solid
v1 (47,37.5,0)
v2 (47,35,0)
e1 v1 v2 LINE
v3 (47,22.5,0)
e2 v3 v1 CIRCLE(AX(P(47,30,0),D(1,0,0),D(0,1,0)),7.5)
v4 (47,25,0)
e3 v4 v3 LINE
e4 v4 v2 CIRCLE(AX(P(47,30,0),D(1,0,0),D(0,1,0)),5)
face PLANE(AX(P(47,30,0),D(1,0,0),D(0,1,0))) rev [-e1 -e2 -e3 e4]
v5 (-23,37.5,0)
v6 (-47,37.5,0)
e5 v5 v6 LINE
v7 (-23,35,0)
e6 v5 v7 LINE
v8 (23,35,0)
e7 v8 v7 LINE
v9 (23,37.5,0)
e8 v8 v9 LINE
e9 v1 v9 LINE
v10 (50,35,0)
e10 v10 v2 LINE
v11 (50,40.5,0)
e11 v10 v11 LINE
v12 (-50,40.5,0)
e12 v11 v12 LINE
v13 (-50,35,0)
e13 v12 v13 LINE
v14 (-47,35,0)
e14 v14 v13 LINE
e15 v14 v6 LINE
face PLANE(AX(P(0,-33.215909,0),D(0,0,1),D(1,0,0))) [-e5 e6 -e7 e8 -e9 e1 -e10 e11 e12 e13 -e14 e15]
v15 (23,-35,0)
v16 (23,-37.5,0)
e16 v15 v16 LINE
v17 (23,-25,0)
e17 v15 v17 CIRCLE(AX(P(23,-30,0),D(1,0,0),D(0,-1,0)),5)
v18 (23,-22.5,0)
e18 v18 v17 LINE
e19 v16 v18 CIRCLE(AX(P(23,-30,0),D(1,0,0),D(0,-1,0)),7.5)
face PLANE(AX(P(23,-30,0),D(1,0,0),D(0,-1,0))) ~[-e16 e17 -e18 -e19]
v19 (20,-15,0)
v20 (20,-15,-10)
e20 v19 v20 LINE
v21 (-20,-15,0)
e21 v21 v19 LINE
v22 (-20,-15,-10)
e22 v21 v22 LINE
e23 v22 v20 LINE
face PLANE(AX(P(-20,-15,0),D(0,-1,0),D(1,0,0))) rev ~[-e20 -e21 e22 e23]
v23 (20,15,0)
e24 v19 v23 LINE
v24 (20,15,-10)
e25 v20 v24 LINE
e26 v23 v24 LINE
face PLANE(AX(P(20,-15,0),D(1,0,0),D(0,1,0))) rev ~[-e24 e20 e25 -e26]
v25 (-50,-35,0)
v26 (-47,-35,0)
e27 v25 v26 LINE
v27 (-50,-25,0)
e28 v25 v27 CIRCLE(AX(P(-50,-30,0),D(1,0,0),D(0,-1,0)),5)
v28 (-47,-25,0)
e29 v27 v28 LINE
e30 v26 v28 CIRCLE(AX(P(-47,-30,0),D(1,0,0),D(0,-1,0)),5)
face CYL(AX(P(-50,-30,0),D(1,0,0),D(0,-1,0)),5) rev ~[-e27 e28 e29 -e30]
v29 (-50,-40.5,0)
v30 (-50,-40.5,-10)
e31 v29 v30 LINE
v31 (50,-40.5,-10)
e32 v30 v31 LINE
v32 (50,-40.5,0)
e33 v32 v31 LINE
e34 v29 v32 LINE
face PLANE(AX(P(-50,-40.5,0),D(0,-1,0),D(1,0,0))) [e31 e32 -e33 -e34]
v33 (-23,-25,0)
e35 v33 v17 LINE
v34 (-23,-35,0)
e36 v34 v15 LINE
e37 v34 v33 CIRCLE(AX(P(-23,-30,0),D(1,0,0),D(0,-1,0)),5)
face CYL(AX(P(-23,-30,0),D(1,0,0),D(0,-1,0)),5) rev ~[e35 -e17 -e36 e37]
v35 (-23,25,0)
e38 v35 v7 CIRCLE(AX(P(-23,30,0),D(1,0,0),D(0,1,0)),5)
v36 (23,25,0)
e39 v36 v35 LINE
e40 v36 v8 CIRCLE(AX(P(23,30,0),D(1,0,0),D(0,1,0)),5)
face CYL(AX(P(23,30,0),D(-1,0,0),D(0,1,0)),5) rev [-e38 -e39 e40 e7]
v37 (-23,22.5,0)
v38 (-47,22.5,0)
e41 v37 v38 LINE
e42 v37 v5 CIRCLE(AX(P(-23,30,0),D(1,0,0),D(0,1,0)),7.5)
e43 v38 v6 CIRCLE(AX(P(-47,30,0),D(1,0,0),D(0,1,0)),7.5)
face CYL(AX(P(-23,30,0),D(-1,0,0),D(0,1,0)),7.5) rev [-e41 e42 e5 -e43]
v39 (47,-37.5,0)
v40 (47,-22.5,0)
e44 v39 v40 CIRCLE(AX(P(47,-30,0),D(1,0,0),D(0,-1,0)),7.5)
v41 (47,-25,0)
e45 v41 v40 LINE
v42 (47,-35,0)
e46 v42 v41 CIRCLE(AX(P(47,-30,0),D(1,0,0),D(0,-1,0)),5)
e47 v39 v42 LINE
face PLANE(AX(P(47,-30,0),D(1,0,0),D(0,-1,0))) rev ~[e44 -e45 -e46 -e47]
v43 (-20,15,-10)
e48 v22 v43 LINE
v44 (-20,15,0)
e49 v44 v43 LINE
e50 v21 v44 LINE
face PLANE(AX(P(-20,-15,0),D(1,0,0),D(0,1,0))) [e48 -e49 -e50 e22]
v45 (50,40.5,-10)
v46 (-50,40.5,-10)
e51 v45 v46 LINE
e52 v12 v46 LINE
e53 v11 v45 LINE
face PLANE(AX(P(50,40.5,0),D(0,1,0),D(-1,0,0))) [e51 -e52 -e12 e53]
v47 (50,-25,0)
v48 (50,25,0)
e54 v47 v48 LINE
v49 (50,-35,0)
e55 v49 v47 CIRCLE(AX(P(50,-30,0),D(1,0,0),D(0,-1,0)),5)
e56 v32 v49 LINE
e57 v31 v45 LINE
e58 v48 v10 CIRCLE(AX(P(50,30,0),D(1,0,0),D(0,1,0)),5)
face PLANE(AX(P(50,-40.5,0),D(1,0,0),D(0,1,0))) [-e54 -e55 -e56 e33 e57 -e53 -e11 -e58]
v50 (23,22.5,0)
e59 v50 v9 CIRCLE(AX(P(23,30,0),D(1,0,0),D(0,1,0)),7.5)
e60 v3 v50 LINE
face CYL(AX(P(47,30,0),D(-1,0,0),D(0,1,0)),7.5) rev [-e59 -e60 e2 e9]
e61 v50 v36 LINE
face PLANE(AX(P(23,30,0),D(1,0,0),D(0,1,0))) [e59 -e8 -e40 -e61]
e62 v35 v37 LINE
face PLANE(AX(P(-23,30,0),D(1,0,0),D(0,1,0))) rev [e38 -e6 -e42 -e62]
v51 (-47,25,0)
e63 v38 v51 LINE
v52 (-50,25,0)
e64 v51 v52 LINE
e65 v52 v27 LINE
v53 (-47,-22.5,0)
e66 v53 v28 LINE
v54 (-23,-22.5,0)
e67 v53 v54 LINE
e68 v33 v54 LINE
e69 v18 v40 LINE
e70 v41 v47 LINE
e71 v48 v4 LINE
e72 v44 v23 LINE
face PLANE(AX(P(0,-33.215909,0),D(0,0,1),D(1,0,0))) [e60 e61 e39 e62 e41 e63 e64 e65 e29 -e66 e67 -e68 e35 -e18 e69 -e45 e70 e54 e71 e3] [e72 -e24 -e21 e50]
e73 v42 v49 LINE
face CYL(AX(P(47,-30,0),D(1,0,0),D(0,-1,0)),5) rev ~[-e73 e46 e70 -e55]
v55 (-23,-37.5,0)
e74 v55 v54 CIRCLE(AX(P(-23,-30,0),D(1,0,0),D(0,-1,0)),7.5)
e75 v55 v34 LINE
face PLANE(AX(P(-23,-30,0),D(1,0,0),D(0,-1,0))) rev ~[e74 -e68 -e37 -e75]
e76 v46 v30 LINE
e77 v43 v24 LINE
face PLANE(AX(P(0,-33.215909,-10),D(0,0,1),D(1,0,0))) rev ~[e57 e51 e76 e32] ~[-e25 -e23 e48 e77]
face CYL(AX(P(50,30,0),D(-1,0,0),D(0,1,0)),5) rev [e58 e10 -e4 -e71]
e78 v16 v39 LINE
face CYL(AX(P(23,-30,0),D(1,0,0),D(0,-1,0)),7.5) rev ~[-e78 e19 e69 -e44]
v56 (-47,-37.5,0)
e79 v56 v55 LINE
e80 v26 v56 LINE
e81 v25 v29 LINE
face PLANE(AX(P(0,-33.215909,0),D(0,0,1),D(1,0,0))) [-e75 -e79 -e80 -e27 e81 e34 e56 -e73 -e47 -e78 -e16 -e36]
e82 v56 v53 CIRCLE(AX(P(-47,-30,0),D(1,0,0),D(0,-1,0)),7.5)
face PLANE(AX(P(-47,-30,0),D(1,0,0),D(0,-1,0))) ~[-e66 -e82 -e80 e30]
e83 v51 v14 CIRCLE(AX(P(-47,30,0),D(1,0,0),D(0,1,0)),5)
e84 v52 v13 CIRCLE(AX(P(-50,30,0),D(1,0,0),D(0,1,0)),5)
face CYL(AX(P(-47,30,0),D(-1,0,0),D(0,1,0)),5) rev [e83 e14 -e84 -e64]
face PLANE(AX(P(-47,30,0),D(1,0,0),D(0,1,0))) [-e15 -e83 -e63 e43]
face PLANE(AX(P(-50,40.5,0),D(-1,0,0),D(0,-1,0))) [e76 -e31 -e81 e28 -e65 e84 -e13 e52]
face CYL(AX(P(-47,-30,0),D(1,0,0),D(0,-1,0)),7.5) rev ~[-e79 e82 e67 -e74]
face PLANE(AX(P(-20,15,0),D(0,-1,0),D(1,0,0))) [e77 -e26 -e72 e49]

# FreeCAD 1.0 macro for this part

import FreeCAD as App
import Part
import Sketcher
from FreeCAD import Vector

doc = App.newDocument("Part")
body = doc.addObject("PartDesign::Body", "Body")

# Sketch on XY plane
sketch1 = doc.addObject("Sketcher::SketchObject", "Sketch")
body.addObject(sketch1)
sketch1.AttachmentSupport = (doc.XY_Plane, [""])
sketch1.MapMode = "FlatFace"
sketch1.addGeometry(Part.LineSegment(Vector(-50, -40, 0), Vector(50, -40, 0)), False)
sketch1.addGeometry(Part.LineSegment(Vector(50, -40, 0), Vector(50, 40, 0)), False)
sketch1.addGeometry(Part.LineSegment(Vector(50, 40, 0), Vector(-50, 40, 0)), False)
sketch1.addGeometry(Part.LineSegment(Vector(-50, 40, 0), Vector(-50, -40, 0)), False)
sketch1.addConstraint(Sketcher.Constraint("Coincident", 0, 2, 1, 1))
sketch1.addConstraint(Sketcher.Constraint("Coincident", 1, 2, 2, 1))
sketch1.addConstraint(Sketcher.Constraint("Coincident", 2, 2, 3, 1))
sketch1.addConstraint(Sketcher.Constraint("Coincident", 3, 2, 0, 1))
sketch1.addConstraint(Sketcher.Constraint("Horizontal", 0))
sketch1.addConstraint(Sketcher.Constraint("Vertical", 1))
sketch1.addConstraint(Sketcher.Constraint("Horizontal", 2))
sketch1.addConstraint(Sketcher.Constraint("Vertical", 3))
sketch1.addConstraint(Sketcher.Constraint("Symmetric", 0, 2, 2, 2, -1, 1))
sketch1.addConstraint(Sketcher.Constraint("DistanceX", 0, 1, 0, 2, 100.0))
sketch1.addConstraint(Sketcher.Constraint("DistanceY", 1, 1, 1, 2, 81.0))
pad1 = doc.addObject("PartDesign::Pad", "Pad")
body.addObject(pad1)
pad1.Profile = sketch1
pad1.Length = 10
pad1.Reversed = True

# Sketch on XY plane
sketch2 = doc.addObject("Sketcher::SketchObject", "Sketch001")
body.addObject(sketch2)
sketch2.AttachmentSupport = (doc.XY_Plane, [""])
sketch2.MapMode = "FlatFace"
sketch2.addGeometry(Part.LineSegment(Vector(-20, 15, 0), Vector(-20, -15, 0)), False)
sketch2.addGeometry(Part.LineSegment(Vector(-20, -15, 0), Vector(20, -15, 0)), False)
sketch2.addGeometry(Part.LineSegment(Vector(20, -15, 0), Vector(20, 15, 0)), False)
sketch2.addGeometry(Part.LineSegment(Vector(20, 15, 0), Vector(-20, 15, 0)), False)
sketch2.addConstraint(Sketcher.Constraint("Coincident", 0, 2, 1, 1))
sketch2.addConstraint(Sketcher.Constraint("Coincident", 1, 2, 2, 1))
sketch2.addConstraint(Sketcher.Constraint("Coincident", 2, 2, 3, 1))
sketch2.addConstraint(Sketcher.Constraint("Coincident", 3, 2, 0, 1))
sketch2.addConstraint(Sketcher.Constraint("Vertical", 0))
sketch2.addConstraint(Sketcher.Constraint("Horizontal", 1))
sketch2.addConstraint(Sketcher.Constraint("Vertical", 2))
sketch2.addConstraint(Sketcher.Constraint("Horizontal", 3))
sketch2.addConstraint(Sketcher.Constraint("Symmetric", 0, 2, 2, 2, -1, 1))
sketch2.addConstraint(Sketcher.Constraint("DistanceX", 1, 1, 1, 2, 40.0))
sketch2.addConstraint(Sketcher.Constraint("DistanceY", 0, 2, 0, 1, 30.0))
pocket1 = doc.addObject("PartDesign::Pocket", "Pocket")
body.addObject(pocket1)
pocket1.Profile = sketch2
pocket1.Type = "ThroughAll"

# Sketch on XY plane
sketch3 = doc.addObject("Sketcher::SketchObject", "Sketch002")
body.addObject(sketch3)
sketch3.AttachmentSupport = (doc.XY_Plane, [""])
sketch3.MapMode = "FlatFace"
sketch3.addGeometry(Part.LineSegment(Vector(50, 30, 0), Vector(50, 35, 0)), False)
sketch3.addGeometry(Part.LineSegment(Vector(50, 35, 0), Vector(47, 35, 0)), False)
sketch3.addGeometry(Part.LineSegment(Vector(47, 35, 0), Vector(47, 37.5, 0)), False)
sketch3.addGeometry(Part.LineSegment(Vector(47, 37.5, 0), Vector(23, 37.5, 0)), False)
sketch3.addGeometry(Part.LineSegment(Vector(23, 37.5, 0), Vector(23, 35, 0)), False)
sketch3.addGeometry(Part.LineSegment(Vector(23, 35, 0), Vector(-23, 35, 0)), False)
sketch3.addGeometry(Part.LineSegment(Vector(-23, 35, 0), Vector(-23, 37.5, 0)), False)
sketch3.addGeometry(Part.LineSegment(Vector(-23, 37.5, 0), Vector(-47, 37.5, 0)), False)
sketch3.addGeometry(Part.LineSegment(Vector(-47, 37.5, 0), Vector(-47, 35, 0)), False)
sketch3.addGeometry(Part.LineSegment(Vector(-47, 35, 0), Vector(-50, 35, 0)), False)
sketch3.addGeometry(Part.LineSegment(Vector(-50, 35, 0), Vector(-50, 30, 0)), False)
sketch3.addGeometry(Part.LineSegment(Vector(-50, 30, 0), Vector(50, 30, 0)), False)
sketch3.addGeometry(Part.LineSegment(Vector(-50, 30, 0), Vector(50, 30, 0)), True)  # axis
sketch3.addConstraint(Sketcher.Constraint("Coincident", 0, 2, 1, 1))
sketch3.addConstraint(Sketcher.Constraint("Coincident", 1, 2, 2, 1))
sketch3.addConstraint(Sketcher.Constraint("Coincident", 2, 2, 3, 1))
sketch3.addConstraint(Sketcher.Constraint("Coincident", 3, 2, 4, 1))
sketch3.addConstraint(Sketcher.Constraint("Coincident", 4, 2, 5, 1))
sketch3.addConstraint(Sketcher.Constraint("Coincident", 5, 2, 6, 1))
sketch3.addConstraint(Sketcher.Constraint("Coincident", 6, 2, 7, 1))
sketch3.addConstraint(Sketcher.Constraint("Coincident", 7, 2, 8, 1))
sketch3.addConstraint(Sketcher.Constraint("Coincident", 8, 2, 9, 1))
sketch3.addConstraint(Sketcher.Constraint("Coincident", 9, 2, 10, 1))
sketch3.addConstraint(Sketcher.Constraint("Coincident", 10, 2, 11, 1))
sketch3.addConstraint(Sketcher.Constraint("Coincident", 11, 2, 0, 1))
sketch3.addConstraint(Sketcher.Constraint("Vertical", 0))
sketch3.addConstraint(Sketcher.Constraint("Horizontal", 1))
sketch3.addConstraint(Sketcher.Constraint("Vertical", 2))
sketch3.addConstraint(Sketcher.Constraint("Horizontal", 3))
sketch3.addConstraint(Sketcher.Constraint("Vertical", 4))
sketch3.addConstraint(Sketcher.Constraint("Horizontal", 5))
sketch3.addConstraint(Sketcher.Constraint("Vertical", 6))
sketch3.addConstraint(Sketcher.Constraint("Horizontal", 7))
sketch3.addConstraint(Sketcher.Constraint("Vertical", 8))
sketch3.addConstraint(Sketcher.Constraint("Horizontal", 9))
sketch3.addConstraint(Sketcher.Constraint("Vertical", 10))
sketch3.addConstraint(Sketcher.Constraint("Horizontal", 11))
sketch3.addConstraint(Sketcher.Constraint("Horizontal", 12))
sketch3.addConstraint(Sketcher.Constraint("Coincident", 12, 1, 10, 2))
sketch3.addConstraint(Sketcher.Constraint("Symmetric", 3, 2, 6, 2, -2))
sketch3.addConstraint(Sketcher.Constraint("Symmetric", 1, 2, 8, 2, -2))
sketch3.addConstraint(Sketcher.Constraint("Horizontal", 1, 2, 4, 2))
sketch3.addConstraint(Sketcher.Constraint("Vertical", 0, 2, 12, 2))
sketch3.addConstraint(Sketcher.Constraint("Equal", 1, 9))
sketch3.addConstraint(Sketcher.Constraint("DistanceX", 1, 2, 1, 1, 3.0))
sketch3.addConstraint(Sketcher.Constraint("DistanceX", 3, 2, 3, 1, 24.0))
sketch3.addConstraint(Sketcher.Constraint("DistanceX", 5, 2, 5, 1, 46.0))
sketch3.addConstraint(Sketcher.Constraint("DistanceY", 0, 1, 0, 2, 5.0))
sketch3.addConstraint(Sketcher.Constraint("DistanceY", 2, 1, 2, 2, 2.5))
sketch3.addConstraint(Sketcher.Constraint("DistanceY", -1, 1, 0, 2, 35.0))
groove = doc.addObject("PartDesign::Groove", "Groove")
body.addObject(groove)
groove.Profile = sketch3
groove.ReferenceAxis = (sketch3, ["Axis0"])
groove.Angle = 360

# Sketch on XY plane
sketch4 = doc.addObject("Sketcher::SketchObject", "Sketch003")
body.addObject(sketch4)
sketch4.AttachmentSupport = (doc.XY_Plane, [""])
sketch4.MapMode = "FlatFace"
sketch4.addGeometry(Part.LineSegment(Vector(50, -35, 0), Vector(50, -30, 0)), False)
sketch4.addGeometry(Part.LineSegment(Vector(50, -30, 0), Vector(-50, -30, 0)), False)
sketch4.addGeometry(Part.LineSegment(Vector(-50, -30, 0), Vector(-50, -35, 0)), False)
sketch4.addGeometry(Part.LineSegment(Vector(-50, -35, 0), Vector(-47, -35, 0)), False)
sketch4.addGeometry(Part.LineSegment(Vector(-47, -35, 0), Vector(-47, -37.5, 0)), False)
sketch4.addGeometry(Part.LineSegment(Vector(-47, -37.5, 0), Vector(-23, -37.5, 0)), False)
sketch4.addGeometry(Part.LineSegment(Vector(-23, -37.5, 0), Vector(-23, -35, 0)), False)
sketch4.addGeometry(Part.LineSegment(Vector(-23, -35, 0), Vector(23, -35, 0)), False)
sketch4.addGeometry(Part.LineSegment(Vector(23, -35, 0), Vector(23, -37.5, 0)), False)
sketch4.addGeometry(Part.LineSegment(Vector(23, -37.5, 0), Vector(47, -37.5, 0)), False)
sketch4.addGeometry(Part.LineSegment(Vector(47, -37.5, 0), Vector(47, -35, 0)), False)
sketch4.addGeometry(Part.LineSegment(Vector(47, -35, 0), Vector(50, -35, 0)), False)
sketch4.addGeometry(Part.LineSegment(Vector(-50, -30, 0), Vector(50, -30, 0)), True)  # axis
sketch4.addConstraint(Sketcher.Constraint("Coincident", 0, 2, 1, 1))
sketch4.addConstraint(Sketcher.Constraint("Coincident", 1, 2, 2, 1))
sketch4.addConstraint(Sketcher.Constraint("Coincident", 2, 2, 3, 1))
sketch4.addConstraint(Sketcher.Constraint("Coincident", 3, 2, 4, 1))
sketch4.addConstraint(Sketcher.Constraint("Coincident", 4, 2, 5, 1))
sketch4.addConstraint(Sketcher.Constraint("Coincident", 5, 2, 6, 1))
sketch4.addConstraint(Sketcher.Constraint("Coincident", 6, 2, 7, 1))
sketch4.addConstraint(Sketcher.Constraint("Coincident", 7, 2, 8, 1))
sketch4.addConstraint(Sketcher.Constraint("Coincident", 8, 2, 9, 1))
sketch4.addConstraint(Sketcher.Constraint("Coincident", 9, 2, 10, 1))
sketch4.addConstraint(Sketcher.Constraint("Coincident", 10, 2, 11, 1))
sketch4.addConstraint(Sketcher.Constraint("Coincident", 11, 2, 0, 1))
sketch4.addConstraint(Sketcher.Constraint("Vertical", 0))
sketch4.addConstraint(Sketcher.Constraint("Horizontal", 1))
sketch4.addConstraint(Sketcher.Constraint("Vertical", 2))
sketch4.addConstraint(Sketcher.Constraint("Horizontal", 3))
sketch4.addConstraint(Sketcher.Constraint("Vertical", 4))
sketch4.addConstraint(Sketcher.Constraint("Horizontal", 5))
sketch4.addConstraint(Sketcher.Constraint("Vertical", 6))
sketch4.addConstraint(Sketcher.Constraint("Horizontal", 7))
sketch4.addConstraint(Sketcher.Constraint("Vertical", 8))
sketch4.addConstraint(Sketcher.Constraint("Horizontal", 9))
sketch4.addConstraint(Sketcher.Constraint("Vertical", 10))
sketch4.addConstraint(Sketcher.Constraint("Horizontal", 11))
sketch4.addConstraint(Sketcher.Constraint("Horizontal", 12))
sketch4.addConstraint(Sketcher.Constraint("Coincident", 12, 1, 1, 2))
sketch4.addConstraint(Sketcher.Constraint("Symmetric", 5, 2, 8, 2, -2))
sketch4.addConstraint(Sketcher.Constraint("Symmetric", 3, 2, 10, 2, -2))
sketch4.addConstraint(Sketcher.Constraint("Horizontal", 3, 2, 6, 2))
sketch4.addConstraint(Sketcher.Constraint("Vertical", 11, 2, 12, 2))
sketch4.addConstraint(Sketcher.Constraint("Equal", 3, 11))
sketch4.addConstraint(Sketcher.Constraint("DistanceX", 1, 2, 1, 1, 100.0))
sketch4.addConstraint(Sketcher.Constraint("DistanceX", 3, 1, 3, 2, 3.0))
sketch4.addConstraint(Sketcher.Constraint("DistanceX", 5, 1, 5, 2, 24.0))
sketch4.addConstraint(Sketcher.Constraint("DistanceY", 0, 1, 0, 2, 5.0))
sketch4.addConstraint(Sketcher.Constraint("DistanceY", 4, 2, 4, 1, 2.5))
sketch4.addConstraint(Sketcher.Constraint("DistanceY", 0, 2, -1, 1, 30.0))
groove2 = doc.addObject("PartDesign::Groove", "Groove001")
body.addObject(groove2)
groove2.Profile = sketch4
groove2.ReferenceAxis = (sketch4, ["Axis0"])
groove2.Angle = 360

doc.recompute()
